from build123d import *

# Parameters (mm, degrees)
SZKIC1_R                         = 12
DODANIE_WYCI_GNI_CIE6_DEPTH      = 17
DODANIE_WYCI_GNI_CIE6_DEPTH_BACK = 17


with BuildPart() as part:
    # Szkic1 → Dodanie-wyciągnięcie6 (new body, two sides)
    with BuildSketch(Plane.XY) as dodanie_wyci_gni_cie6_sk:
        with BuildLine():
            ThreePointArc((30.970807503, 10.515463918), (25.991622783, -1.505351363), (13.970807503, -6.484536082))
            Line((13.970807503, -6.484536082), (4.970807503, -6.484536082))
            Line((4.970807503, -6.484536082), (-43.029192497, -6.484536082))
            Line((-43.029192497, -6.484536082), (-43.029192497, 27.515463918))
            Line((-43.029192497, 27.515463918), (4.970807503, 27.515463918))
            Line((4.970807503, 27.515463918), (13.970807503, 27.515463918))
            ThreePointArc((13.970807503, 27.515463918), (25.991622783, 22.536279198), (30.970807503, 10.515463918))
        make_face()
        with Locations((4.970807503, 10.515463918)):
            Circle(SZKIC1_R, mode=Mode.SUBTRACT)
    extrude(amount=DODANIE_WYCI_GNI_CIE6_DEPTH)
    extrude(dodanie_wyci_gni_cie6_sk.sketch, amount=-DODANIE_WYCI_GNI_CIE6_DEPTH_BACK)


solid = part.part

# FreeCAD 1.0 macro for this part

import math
import FreeCAD as App
import Part
import Sketcher

V = App.Vector
Q = App.Units.Quantity

doc = App.newDocument("Part")
body = doc.addObject("PartDesign::Body", "Body")

# Sketch on XY plane
sketch1 = body.newObject("Sketcher::SketchObject", "Sketch")
sketch1.AttachmentSupport = (doc.getObject("XY_Plane"), [""])
sketch1.MapMode = "FlatFace"
sketch1.addGeometry(Part.ArcOfCircle(Part.Circle(V(13.970808, 10.515464, 0), V(0, 0, 1), 17), math.radians(-90), math.radians(0)), False)
sketch1.addGeometry(Part.ArcOfCircle(Part.Circle(V(13.970808, 10.515464, 0), V(0, 0, 1), 17), math.radians(0), math.radians(90)), False)
sketch1.addGeometry(Part.LineSegment(V(13.970808, 27.515464, 0), V(-43.029192, 27.515464, 0)), False)
sketch1.addGeometry(Part.LineSegment(V(-43.029192, 27.515464, 0), V(-43.029192, -6.484536, 0)), False)
sketch1.addGeometry(Part.LineSegment(V(-43.029192, -6.484536, 0), V(13.970808, -6.484536, 0)), False)
sketch1.addGeometry(Part.Circle(V(4.970808, 10.515464, 0), V(0, 0, 1), 12), False)
sketch1.addConstraint(Sketcher.Constraint("Tangent", 0, 2, 1, 1))
sketch1.addConstraint(Sketcher.Constraint("Tangent", 1, 2, 2, 1))
sketch1.addConstraint(Sketcher.Constraint("Coincident", 2, 2, 3, 1))
sketch1.addConstraint(Sketcher.Constraint("Coincident", 3, 2, 4, 1))
sketch1.addConstraint(Sketcher.Constraint("Tangent", 4, 2, 0, 1))
sketch1.addConstraint(Sketcher.Constraint("Horizontal", 2))
sketch1.addConstraint(Sketcher.Constraint("Vertical", 3))
sketch1.addConstraint(Sketcher.Constraint("Horizontal", 4))
sketch1.addConstraint(Sketcher.Constraint("Equal", 0, 1))
sketch1.addConstraint(Sketcher.Constraint("Horizontal", 1, 3, 5, 3))
sketch1.addConstraint(Sketcher.Constraint("Horizontal", 5, 3, 0, 2))
sketch1.addConstraint(Sketcher.Constraint("Diameter", 5, Q("24 mm")))
sketch1.addConstraint(Sketcher.Constraint("Radius", 0, Q("17 mm")))
sketch1.addConstraint(Sketcher.Constraint("DistanceX", 2, 2, 2, 1, Q("57 mm")))
sketch1.addConstraint(Sketcher.Constraint("DistanceX", 5, 3, 1, 3, Q("9 mm")))
sketch1.addConstraint(Sketcher.Constraint("DistanceX", -1, 1, 0, 3, Q("13.970808 mm")))
sketch1.addConstraint(Sketcher.Constraint("DistanceY", -1, 1, 0, 3, Q("10.515464 mm")))
pad1 = body.newObject("PartDesign::Pad", "Pad")
pad1.Profile = sketch1
pad1.Type = "TwoLengths"
pad1.Length = 17
pad1.Length2 = 17

doc.recompute()
